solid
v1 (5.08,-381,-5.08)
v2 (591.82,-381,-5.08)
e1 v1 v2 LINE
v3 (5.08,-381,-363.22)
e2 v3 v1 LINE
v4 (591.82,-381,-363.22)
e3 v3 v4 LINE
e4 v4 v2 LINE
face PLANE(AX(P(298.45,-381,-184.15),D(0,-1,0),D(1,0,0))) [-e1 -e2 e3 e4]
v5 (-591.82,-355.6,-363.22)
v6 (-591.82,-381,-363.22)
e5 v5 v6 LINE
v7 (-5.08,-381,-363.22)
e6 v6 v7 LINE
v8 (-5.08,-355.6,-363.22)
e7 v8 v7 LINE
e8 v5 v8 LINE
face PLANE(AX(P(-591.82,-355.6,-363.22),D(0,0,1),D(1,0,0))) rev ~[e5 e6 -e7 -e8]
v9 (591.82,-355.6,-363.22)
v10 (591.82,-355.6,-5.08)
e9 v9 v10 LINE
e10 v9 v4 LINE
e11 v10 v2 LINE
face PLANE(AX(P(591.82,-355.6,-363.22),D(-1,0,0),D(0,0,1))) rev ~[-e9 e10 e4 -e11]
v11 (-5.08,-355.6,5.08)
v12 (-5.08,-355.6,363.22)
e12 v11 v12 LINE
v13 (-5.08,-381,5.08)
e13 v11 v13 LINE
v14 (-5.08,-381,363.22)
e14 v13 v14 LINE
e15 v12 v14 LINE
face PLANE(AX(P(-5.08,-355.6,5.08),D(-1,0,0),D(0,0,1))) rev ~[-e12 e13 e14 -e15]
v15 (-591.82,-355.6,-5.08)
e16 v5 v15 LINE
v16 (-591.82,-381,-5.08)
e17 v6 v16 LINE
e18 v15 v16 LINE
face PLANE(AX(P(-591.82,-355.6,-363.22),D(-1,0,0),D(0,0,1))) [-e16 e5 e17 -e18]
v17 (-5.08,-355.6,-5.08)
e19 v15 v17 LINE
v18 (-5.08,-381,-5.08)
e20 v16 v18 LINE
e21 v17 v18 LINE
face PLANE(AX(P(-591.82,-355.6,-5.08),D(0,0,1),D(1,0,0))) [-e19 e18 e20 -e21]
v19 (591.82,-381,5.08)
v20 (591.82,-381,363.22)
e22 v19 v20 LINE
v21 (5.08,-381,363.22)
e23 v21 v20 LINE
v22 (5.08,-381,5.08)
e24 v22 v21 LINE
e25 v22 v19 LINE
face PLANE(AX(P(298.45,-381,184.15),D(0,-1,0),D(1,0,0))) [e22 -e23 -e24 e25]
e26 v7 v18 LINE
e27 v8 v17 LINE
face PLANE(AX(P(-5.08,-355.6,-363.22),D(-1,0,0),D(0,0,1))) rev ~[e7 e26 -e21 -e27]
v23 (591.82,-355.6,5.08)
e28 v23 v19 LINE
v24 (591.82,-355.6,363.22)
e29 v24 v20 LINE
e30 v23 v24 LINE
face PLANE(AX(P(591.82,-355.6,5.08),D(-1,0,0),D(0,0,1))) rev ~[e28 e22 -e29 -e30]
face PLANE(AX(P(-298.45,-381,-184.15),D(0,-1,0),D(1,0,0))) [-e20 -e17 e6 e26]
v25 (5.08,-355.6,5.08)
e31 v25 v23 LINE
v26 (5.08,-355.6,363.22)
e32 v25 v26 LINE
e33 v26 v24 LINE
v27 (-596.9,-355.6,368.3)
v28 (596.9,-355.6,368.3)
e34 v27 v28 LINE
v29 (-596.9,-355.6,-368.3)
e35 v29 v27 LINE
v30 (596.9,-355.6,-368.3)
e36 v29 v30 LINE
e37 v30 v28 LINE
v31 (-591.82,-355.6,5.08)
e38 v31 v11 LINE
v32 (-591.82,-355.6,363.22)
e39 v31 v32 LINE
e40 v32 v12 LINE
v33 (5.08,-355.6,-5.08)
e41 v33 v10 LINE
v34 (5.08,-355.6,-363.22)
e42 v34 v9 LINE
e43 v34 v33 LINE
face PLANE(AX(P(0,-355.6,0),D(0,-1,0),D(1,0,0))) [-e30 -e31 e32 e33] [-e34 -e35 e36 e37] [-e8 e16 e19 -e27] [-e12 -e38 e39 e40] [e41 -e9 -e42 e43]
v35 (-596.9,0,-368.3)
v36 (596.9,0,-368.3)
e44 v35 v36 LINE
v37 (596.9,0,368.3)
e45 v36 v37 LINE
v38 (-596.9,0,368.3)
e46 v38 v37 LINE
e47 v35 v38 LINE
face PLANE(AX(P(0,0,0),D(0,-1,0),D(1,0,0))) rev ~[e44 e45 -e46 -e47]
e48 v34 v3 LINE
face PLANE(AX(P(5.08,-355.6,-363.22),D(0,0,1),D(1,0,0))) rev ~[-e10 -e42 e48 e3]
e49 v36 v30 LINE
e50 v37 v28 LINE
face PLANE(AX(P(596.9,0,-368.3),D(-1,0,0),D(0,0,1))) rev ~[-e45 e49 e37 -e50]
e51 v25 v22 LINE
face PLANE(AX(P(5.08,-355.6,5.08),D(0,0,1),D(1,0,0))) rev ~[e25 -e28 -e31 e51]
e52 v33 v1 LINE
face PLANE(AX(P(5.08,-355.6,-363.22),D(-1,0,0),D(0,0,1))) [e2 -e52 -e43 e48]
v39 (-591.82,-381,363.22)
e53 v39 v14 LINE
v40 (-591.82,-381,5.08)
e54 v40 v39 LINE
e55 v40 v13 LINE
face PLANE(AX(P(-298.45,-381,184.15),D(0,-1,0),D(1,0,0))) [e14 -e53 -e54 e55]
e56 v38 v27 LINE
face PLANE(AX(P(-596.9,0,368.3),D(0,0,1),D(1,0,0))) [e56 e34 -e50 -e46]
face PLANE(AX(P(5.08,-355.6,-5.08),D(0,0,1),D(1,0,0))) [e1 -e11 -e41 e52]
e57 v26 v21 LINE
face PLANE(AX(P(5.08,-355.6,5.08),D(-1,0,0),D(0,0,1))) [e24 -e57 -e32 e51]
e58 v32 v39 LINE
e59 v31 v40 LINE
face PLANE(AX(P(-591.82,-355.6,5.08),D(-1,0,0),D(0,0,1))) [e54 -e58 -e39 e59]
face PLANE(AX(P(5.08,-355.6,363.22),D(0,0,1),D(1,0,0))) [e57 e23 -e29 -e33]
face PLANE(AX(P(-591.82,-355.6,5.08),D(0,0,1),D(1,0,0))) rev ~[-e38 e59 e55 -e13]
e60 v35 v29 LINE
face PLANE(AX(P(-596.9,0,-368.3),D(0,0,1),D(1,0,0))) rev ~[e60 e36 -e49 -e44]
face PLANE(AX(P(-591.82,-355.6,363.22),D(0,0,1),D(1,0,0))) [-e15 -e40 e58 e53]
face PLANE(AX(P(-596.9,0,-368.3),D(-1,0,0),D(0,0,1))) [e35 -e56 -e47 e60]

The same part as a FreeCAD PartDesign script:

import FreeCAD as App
import Part
import Sketcher
Q = App.Units.Quantity


def add_polygon(sketch, points):
    """Adds a closed chain of lines whose ends are joined by coincident constraints."""
    first, n = sketch.GeometryCount, len(points)
    for a, b in zip(points, points[1:] + points[:1]):
        sketch.addGeometry(Part.LineSegment(App.Vector(*a, 0), App.Vector(*b, 0)), False)
    for i in range(n):
        sketch.addConstraint(Sketcher.Constraint("Coincident", first + i, 2, first + (i + 1) % n, 1))

doc = App.newDocument("Part")
params = doc.addObject("Spreadsheet::Sheet", "Params")
for row, (alias, value) in enumerate([
    ("sketch1_width", "47 in"),
    ("sketch1_height", "29 in"),
    ("pad1_length", "14 in"),
    ("sketch2_width", "23.1 in"),
    ("sketch2_height", "14.1 in"),
    ("pad2_length", "1 in"),
], start=1):
    params.set(f"A{row}", alias)
    params.set(f"B{row}", "=" + value)
    params.setAlias(f"B{row}", alias)

body = doc.addObject("PartDesign::Body", "Body")

# Sketch on XZ plane
sketch1 = body.newObject("Sketcher::SketchObject", "Sketch")
sketch1.AttachmentSupport = (doc.getObject("XZ_Plane"), [""])
sketch1.MapMode = "FlatFace"
add_polygon(sketch1, [(-596.9, 368.3), (-596.9, -368.3), (596.9, -368.3), (596.9, 368.3)])  # lines 0-3
sketch1.addConstraint(Sketcher.Constraint("Vertical", 0))
sketch1.addConstraint(Sketcher.Constraint("Horizontal", 1))
sketch1.addConstraint(Sketcher.Constraint("Vertical", 2))
sketch1.addConstraint(Sketcher.Constraint("Horizontal", 3))
sketch1.addConstraint(Sketcher.Constraint("Symmetric", 0, 2, 2, 2, -1, 1))
sketch1.addConstraint(Sketcher.Constraint("DistanceX", 1, 1, 1, 2, Q("47 in")))
sketch1.addConstraint(Sketcher.Constraint("DistanceY", 0, 2, 0, 1, Q("29 in")))
sketch1.setExpression("Constraints[9]", "Params.sketch1_width")
sketch1.setExpression("Constraints[10]", "Params.sketch1_height")
pad1 = body.newObject("PartDesign::Pad", "Pad")
pad1.Profile = sketch1
pad1.setExpression("Length", "Params.pad1_length")

# Sketch on XZ plane
sketch2 = body.newObject("Sketcher::SketchObject", "Sketch001")
sketch2.AttachmentSupport = (doc.getObject("XZ_Plane"), [""])
sketch2.MapMode = "FlatFace"
sketch2.AttachmentOffset = App.Placement(App.Vector(0, 0, 14 * 25.4), App.Rotation())
add_polygon(sketch2, [(5.08, 363.22), (5.08, 5.08), (591.82, 5.08), (591.82, 363.22)])  # lines 0-3
add_polygon(sketch2, [(5.08, -5.08), (5.08, -363.22), (591.82, -363.22), (591.82, -5.08)])  # lines 4-7
add_polygon(sketch2, [(-591.82, -5.08), (-591.82, -363.22), (-5.08, -363.22), (-5.08, -5.08)])  # lines 8-11
add_polygon(sketch2, [(-591.82, 363.22), (-591.82, 5.08), (-5.08, 5.08), (-5.08, 363.22)])  # lines 12-15
sketch2.addConstraint(Sketcher.Constraint("Vertical", 0))
sketch2.addConstraint(Sketcher.Constraint("Horizontal", 1))
sketch2.addConstraint(Sketcher.Constraint("Vertical", 2))
sketch2.addConstraint(Sketcher.Constraint("Horizontal", 3))
sketch2.addConstraint(Sketcher.Constraint("Vertical", 4))
sketch2.addConstraint(Sketcher.Constraint("Horizontal", 5))
sketch2.addConstraint(Sketcher.Constraint("Vertical", 6))
sketch2.addConstraint(Sketcher.Constraint("Horizontal", 7))
sketch2.addConstraint(Sketcher.Constraint("Vertical", 8))
sketch2.addConstraint(Sketcher.Constraint("Horizontal", 9))
sketch2.addConstraint(Sketcher.Constraint("Vertical", 10))
sketch2.addConstraint(Sketcher.Constraint("Horizontal", 11))
sketch2.addConstraint(Sketcher.Constraint("Vertical", 12))
sketch2.addConstraint(Sketcher.Constraint("Horizontal", 13))
sketch2.addConstraint(Sketcher.Constraint("Vertical", 14))
sketch2.addConstraint(Sketcher.Constraint("Horizontal", 15))
sketch2.addConstraint(Sketcher.Constraint("Symmetric", 2, 2, 8, 2, -1, 1))
sketch2.addConstraint(Sketcher.Constraint("Symmetric", 0, 2, 10, 2, -1, 1))
sketch2.addConstraint(Sketcher.Constraint("Symmetric", 6, 2, 12, 2, -1, 1))
sketch2.addConstraint(Sketcher.Constraint("Symmetric", 4, 2, 14, 2, -1, 1))
sketch2.addConstraint(Sketcher.Constraint("Symmetric", 5, 2, 8, 2, -2))
sketch2.addConstraint(Sketcher.Constraint("Symmetric", 7, 2, 10, 2, -2))
sketch2.addConstraint(Sketcher.Constraint("DistanceX", 1, 1, 1, 2, Q("23.1 in")))
sketch2.addConstraint(Sketcher.Constraint("DistanceY", 0, 2, 0, 1, Q("14.1 in")))
sketch2.addConstraint(Sketcher.Constraint("DistanceX", -1, 1, 0, 2, Q("0.2 in")))
sketch2.addConstraint(Sketcher.Constraint("DistanceY", -1, 1, 0, 2, Q("0.2 in")))
sketch2.setExpression("Constraints[38]", "Params.sketch2_width")
sketch2.setExpression("Constraints[39]", "Params.sketch2_height")
pad2 = body.newObject("PartDesign::Pad", "Pad001")
pad2.Profile = sketch2
pad2.setExpression("Length", "Params.pad2_length")

doc.recompute()
